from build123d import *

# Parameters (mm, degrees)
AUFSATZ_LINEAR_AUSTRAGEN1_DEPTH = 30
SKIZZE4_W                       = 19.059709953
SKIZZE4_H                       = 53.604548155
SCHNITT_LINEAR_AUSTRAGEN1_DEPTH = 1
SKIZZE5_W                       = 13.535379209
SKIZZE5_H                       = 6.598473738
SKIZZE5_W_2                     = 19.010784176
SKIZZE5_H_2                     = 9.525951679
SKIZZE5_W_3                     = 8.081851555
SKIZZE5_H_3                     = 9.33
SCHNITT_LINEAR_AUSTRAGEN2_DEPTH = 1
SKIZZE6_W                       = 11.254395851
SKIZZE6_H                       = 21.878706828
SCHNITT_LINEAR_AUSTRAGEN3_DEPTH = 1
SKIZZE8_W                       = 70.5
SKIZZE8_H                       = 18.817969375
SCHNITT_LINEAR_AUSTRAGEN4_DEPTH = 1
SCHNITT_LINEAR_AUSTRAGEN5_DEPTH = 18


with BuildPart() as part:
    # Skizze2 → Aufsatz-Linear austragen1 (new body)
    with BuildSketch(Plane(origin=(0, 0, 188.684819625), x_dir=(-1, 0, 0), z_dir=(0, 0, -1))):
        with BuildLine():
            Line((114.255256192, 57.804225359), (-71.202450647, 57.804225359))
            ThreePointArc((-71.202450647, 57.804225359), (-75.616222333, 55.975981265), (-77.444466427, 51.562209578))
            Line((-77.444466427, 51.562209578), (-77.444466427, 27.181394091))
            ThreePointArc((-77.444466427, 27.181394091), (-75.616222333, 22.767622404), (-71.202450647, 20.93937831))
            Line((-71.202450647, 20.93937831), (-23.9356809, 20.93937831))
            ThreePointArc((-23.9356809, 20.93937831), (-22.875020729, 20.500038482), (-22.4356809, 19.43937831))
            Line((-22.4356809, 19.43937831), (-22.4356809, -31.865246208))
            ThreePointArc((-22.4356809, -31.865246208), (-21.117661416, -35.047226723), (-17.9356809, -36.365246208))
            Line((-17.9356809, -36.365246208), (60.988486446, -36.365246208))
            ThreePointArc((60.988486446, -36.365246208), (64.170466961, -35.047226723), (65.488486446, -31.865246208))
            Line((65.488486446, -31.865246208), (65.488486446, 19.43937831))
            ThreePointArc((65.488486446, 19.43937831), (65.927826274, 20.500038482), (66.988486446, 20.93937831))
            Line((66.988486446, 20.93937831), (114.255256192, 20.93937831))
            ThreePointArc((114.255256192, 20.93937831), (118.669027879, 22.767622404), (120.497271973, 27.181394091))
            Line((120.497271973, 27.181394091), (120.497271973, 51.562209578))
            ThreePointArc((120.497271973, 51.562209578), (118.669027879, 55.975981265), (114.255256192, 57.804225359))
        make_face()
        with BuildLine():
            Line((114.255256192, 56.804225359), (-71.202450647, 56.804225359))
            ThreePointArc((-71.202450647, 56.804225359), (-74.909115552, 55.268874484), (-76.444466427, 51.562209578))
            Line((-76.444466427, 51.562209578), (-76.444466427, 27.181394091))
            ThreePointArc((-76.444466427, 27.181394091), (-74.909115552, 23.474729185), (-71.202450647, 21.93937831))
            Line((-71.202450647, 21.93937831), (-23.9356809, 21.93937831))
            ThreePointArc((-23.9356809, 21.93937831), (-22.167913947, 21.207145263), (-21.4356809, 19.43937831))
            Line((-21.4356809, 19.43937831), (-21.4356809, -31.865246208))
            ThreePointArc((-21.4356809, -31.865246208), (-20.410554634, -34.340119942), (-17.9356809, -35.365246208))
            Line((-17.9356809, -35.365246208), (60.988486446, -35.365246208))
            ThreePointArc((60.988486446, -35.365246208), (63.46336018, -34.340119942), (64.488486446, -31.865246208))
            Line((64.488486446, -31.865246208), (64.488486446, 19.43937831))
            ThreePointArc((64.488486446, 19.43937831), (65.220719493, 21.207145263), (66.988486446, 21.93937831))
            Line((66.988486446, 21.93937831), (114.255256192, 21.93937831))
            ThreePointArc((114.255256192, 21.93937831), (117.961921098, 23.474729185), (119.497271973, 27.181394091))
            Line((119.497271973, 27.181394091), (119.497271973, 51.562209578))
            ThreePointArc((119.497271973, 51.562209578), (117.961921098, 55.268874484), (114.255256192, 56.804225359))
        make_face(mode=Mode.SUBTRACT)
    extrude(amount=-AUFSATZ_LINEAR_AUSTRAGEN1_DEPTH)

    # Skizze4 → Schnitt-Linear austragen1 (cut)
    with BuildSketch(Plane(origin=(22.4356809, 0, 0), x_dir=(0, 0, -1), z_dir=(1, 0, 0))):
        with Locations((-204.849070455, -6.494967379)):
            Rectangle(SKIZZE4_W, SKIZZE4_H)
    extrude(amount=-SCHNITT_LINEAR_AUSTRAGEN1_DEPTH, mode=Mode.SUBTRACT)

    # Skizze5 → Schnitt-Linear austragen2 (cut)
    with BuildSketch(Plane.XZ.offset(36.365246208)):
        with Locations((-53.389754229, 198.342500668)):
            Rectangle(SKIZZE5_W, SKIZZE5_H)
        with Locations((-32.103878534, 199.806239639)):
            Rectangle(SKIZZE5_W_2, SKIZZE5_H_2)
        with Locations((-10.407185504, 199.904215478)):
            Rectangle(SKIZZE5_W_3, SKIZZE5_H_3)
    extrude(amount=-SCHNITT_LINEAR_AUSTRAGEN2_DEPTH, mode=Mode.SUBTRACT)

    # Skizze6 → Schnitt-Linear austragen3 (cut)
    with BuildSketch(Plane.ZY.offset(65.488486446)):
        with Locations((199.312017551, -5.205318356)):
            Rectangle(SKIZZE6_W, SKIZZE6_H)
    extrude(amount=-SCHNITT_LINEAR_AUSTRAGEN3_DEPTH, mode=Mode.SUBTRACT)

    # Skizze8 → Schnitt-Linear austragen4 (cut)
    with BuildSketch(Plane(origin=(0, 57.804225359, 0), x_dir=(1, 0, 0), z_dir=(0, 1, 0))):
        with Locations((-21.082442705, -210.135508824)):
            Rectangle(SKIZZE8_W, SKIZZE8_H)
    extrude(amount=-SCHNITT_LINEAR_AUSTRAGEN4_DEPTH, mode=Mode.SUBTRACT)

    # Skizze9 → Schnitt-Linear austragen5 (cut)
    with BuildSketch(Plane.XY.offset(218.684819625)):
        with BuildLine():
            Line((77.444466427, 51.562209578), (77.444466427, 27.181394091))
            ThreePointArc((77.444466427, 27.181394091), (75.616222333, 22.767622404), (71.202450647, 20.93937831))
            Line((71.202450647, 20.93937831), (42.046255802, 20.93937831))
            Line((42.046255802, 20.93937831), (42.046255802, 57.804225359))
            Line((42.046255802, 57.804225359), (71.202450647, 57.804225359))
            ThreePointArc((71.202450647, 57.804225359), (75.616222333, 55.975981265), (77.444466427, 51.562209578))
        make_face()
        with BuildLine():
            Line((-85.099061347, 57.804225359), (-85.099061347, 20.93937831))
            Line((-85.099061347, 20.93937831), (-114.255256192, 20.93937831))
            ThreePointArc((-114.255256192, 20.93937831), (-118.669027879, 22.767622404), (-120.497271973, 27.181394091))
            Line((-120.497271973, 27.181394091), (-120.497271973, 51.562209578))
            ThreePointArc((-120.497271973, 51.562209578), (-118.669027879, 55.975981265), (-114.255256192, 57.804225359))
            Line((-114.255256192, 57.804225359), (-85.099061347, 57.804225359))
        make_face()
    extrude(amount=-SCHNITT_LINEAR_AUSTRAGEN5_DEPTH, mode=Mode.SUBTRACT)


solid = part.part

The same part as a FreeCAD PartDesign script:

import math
import FreeCAD as App
import Part
import Sketcher

doc = App.newDocument("Part")
params = doc.addObject("Spreadsheet::Sheet", "Params")
for row, (alias, value) in enumerate([
    ("sketch1_radius", "1.5 mm"),
    ("sketch1_radius2", "4.5 mm"),
    ("sketch1_radius3", "2.5 mm"),
    ("pad1_length", "30 mm"),
    ("pocket1_length", "1 mm"),
    ("sketch3_height", "9.33 mm"),
    ("pocket2_length", "1 mm"),
    ("pocket3_length", "1 mm"),
    ("sketch5_width", "70.5 mm"),
    ("pocket4_length", "1 mm"),
    ("pocket5_length", "18 mm"),
], start=1):
    params.set(f"A{row}", alias)
    params.set(f"B{row}", "=" + value)
    params.setAlias(f"B{row}", alias)

body = doc.addObject("PartDesign::Body", "Body")

# Sketch on XY plane
sketch1 = body.newObject("Sketcher::SketchObject", "Sketch")
sketch1.AttachmentSupport = (doc.getObject("XY_Plane"), [""])
sketch1.MapMode = "FlatFace"
sketch1.AttachmentOffset = App.Placement(App.Vector(0, 0, 188.68482), App.Rotation())
sketch1.addGeometry([
    Part.LineSegment(App.Vector(-114.255256, 57.804225, 0), App.Vector(71.202451, 57.804225, 0)),  # 0
    Part.ArcOfCircle(Part.Circle(App.Vector(71.202451, 51.56221, 0), App.Vector(0, 0, 1), 6.242016), math.radians(0), math.radians(90)),  # 1
    Part.LineSegment(App.Vector(77.444466, 51.56221, 0), App.Vector(77.444466, 27.181394, 0)),  # 2
    Part.ArcOfCircle(Part.Circle(App.Vector(71.202451, 27.181394, 0), App.Vector(0, 0, 1), 6.242016), math.radians(-90), math.radians(0)),  # 3
    Part.LineSegment(App.Vector(71.202451, 20.939378, 0), App.Vector(23.935681, 20.939378, 0)),  # 4
    Part.ArcOfCircle(Part.Circle(App.Vector(23.935681, 19.439378, 0), App.Vector(0, 0, 1), 1.5), math.radians(90), math.radians(180)),  # 5
    Part.LineSegment(App.Vector(22.435681, 19.439378, 0), App.Vector(22.435681, -31.865246, 0)),  # 6
    Part.ArcOfCircle(Part.Circle(App.Vector(17.935681, -31.865246, 0), App.Vector(0, 0, 1), 4.5), math.radians(-90), math.radians(0)),  # 7
    Part.LineSegment(App.Vector(17.935681, -36.365246, 0), App.Vector(-60.988486, -36.365246, 0)),  # 8
    Part.ArcOfCircle(Part.Circle(App.Vector(-60.988486, -31.865246, 0), App.Vector(0, 0, 1), 4.5), math.radians(-180), math.radians(-90)),  # 9
    Part.LineSegment(App.Vector(-65.488486, -31.865246, 0), App.Vector(-65.488486, 19.439378, 0)),  # 10
    Part.ArcOfCircle(Part.Circle(App.Vector(-66.988486, 19.439378, 0), App.Vector(0, 0, 1), 1.5), math.radians(0), math.radians(90)),  # 11
    Part.LineSegment(App.Vector(-66.988486, 20.939378, 0), App.Vector(-114.255256, 20.939378, 0)),  # 12
    Part.ArcOfCircle(Part.Circle(App.Vector(-114.255256, 27.181394, 0), App.Vector(0, 0, 1), 6.242016), math.radians(180), math.radians(270)),  # 13
    Part.LineSegment(App.Vector(-120.497272, 27.181394, 0), App.Vector(-120.497272, 51.56221, 0)),  # 14
    Part.ArcOfCircle(Part.Circle(App.Vector(-114.255256, 51.56221, 0), App.Vector(0, 0, 1), 6.242016), math.radians(90), math.radians(180)),  # 15
    Part.LineSegment(App.Vector(71.202451, 56.804225, 0), App.Vector(-114.255256, 56.804225, 0)),  # 16
    Part.ArcOfCircle(Part.Circle(App.Vector(-114.255256, 51.56221, 0), App.Vector(0, 0, 1), 5.242016), math.radians(90), math.radians(180)),  # 17
    Part.LineSegment(App.Vector(-119.497272, 51.56221, 0), App.Vector(-119.497272, 27.181394, 0)),  # 18
    Part.ArcOfCircle(Part.Circle(App.Vector(-114.255256, 27.181394, 0), App.Vector(0, 0, 1), 5.242016), math.radians(180), math.radians(270)),  # 19
    Part.LineSegment(App.Vector(-114.255256, 21.939378, 0), App.Vector(-66.988486, 21.939378, 0)),  # 20
    Part.ArcOfCircle(Part.Circle(App.Vector(-66.988486, 19.439378, 0), App.Vector(0, 0, 1), 2.5), math.radians(0), math.radians(90)),  # 21
    Part.LineSegment(App.Vector(-64.488486, 19.439378, 0), App.Vector(-64.488486, -31.865246, 0)),  # 22
    Part.ArcOfCircle(Part.Circle(App.Vector(-60.988486, -31.865246, 0), App.Vector(0, 0, 1), 3.5), math.radians(-180), math.radians(-90)),  # 23
    Part.LineSegment(App.Vector(-60.988486, -35.365246, 0), App.Vector(17.935681, -35.365246, 0)),  # 24
    Part.ArcOfCircle(Part.Circle(App.Vector(17.935681, -31.865246, 0), App.Vector(0, 0, 1), 3.5), math.radians(-90), math.radians(0)),  # 25
    Part.LineSegment(App.Vector(21.435681, -31.865246, 0), App.Vector(21.435681, 19.439378, 0)),  # 26
    Part.ArcOfCircle(Part.Circle(App.Vector(23.935681, 19.439378, 0), App.Vector(0, 0, 1), 2.5), math.radians(90), math.radians(180)),  # 27
    Part.LineSegment(App.Vector(23.935681, 21.939378, 0), App.Vector(71.202451, 21.939378, 0)),  # 28
    Part.ArcOfCircle(Part.Circle(App.Vector(71.202451, 27.181394, 0), App.Vector(0, 0, 1), 5.242016), math.radians(-90), math.radians(0)),  # 29
    Part.LineSegment(App.Vector(76.444466, 27.181394, 0), App.Vector(76.444466, 51.56221, 0)),  # 30
    Part.ArcOfCircle(Part.Circle(App.Vector(71.202451, 51.56221, 0), App.Vector(0, 0, 1), 5.242016), math.radians(0), math.radians(90)),  # 31
], False)
sketch1.addConstraint([
    Sketcher.Constraint("Tangent", 0, 2, 1, 2),
    Sketcher.Constraint("Tangent", 1, 1, 2, 1),
    Sketcher.Constraint("Tangent", 2, 2, 3, 2),
    Sketcher.Constraint("Tangent", 3, 1, 4, 1),
    Sketcher.Constraint("Tangent", 4, 2, 5, 1),
    Sketcher.Constraint("Tangent", 5, 2, 6, 1),
    Sketcher.Constraint("Tangent", 6, 2, 7, 2),
    Sketcher.Constraint("Tangent", 7, 1, 8, 1),
    Sketcher.Constraint("Tangent", 8, 2, 9, 2),
    Sketcher.Constraint("Tangent", 9, 1, 10, 1),
    Sketcher.Constraint("Tangent", 10, 2, 11, 1),
    Sketcher.Constraint("Tangent", 11, 2, 12, 1),
    Sketcher.Constraint("Tangent", 12, 2, 13, 2),
    Sketcher.Constraint("Tangent", 13, 1, 14, 1),
    Sketcher.Constraint("Tangent", 14, 2, 15, 2),
    Sketcher.Constraint("Tangent", 15, 1, 0, 1),
    Sketcher.Constraint("Tangent", 16, 2, 17, 1),
    Sketcher.Constraint("Tangent", 17, 2, 18, 1),
    Sketcher.Constraint("Tangent", 18, 2, 19, 1),
    Sketcher.Constraint("Tangent", 19, 2, 20, 1),
    Sketcher.Constraint("Tangent", 20, 2, 21, 2),
    Sketcher.Constraint("Tangent", 21, 1, 22, 1),
    Sketcher.Constraint("Tangent", 22, 2, 23, 1),
    Sketcher.Constraint("Tangent", 23, 2, 24, 1),
    Sketcher.Constraint("Tangent", 24, 2, 25, 1),
    Sketcher.Constraint("Tangent", 25, 2, 26, 1),
    Sketcher.Constraint("Tangent", 26, 2, 27, 2),
    Sketcher.Constraint("Tangent", 27, 1, 28, 1),
    Sketcher.Constraint("Tangent", 28, 2, 29, 1),
    Sketcher.Constraint("Tangent", 29, 2, 30, 1),
    Sketcher.Constraint("Tangent", 30, 2, 31, 1),
    Sketcher.Constraint("Tangent", 31, 2, 16, 1),
    Sketcher.Constraint("Horizontal", 0),
    Sketcher.Constraint("Vertical", 2),
    Sketcher.Constraint("Horizontal", 4),
    Sketcher.Constraint("Vertical", 6),
    Sketcher.Constraint("Horizontal", 8),
    Sketcher.Constraint("Vertical", 10),
    Sketcher.Constraint("Horizontal", 12),
    Sketcher.Constraint("Vertical", 14),
    Sketcher.Constraint("Horizontal", 16),
    Sketcher.Constraint("Vertical", 18),
    Sketcher.Constraint("Horizontal", 20),
    Sketcher.Constraint("Vertical", 22),
    Sketcher.Constraint("Horizontal", 24),
    Sketcher.Constraint("Vertical", 26),
    Sketcher.Constraint("Horizontal", 28),
    Sketcher.Constraint("Vertical", 30),
    Sketcher.Constraint("Coincident", 17, 3, 15, 3),
    Sketcher.Constraint("Coincident", 19, 3, 13, 3),
    Sketcher.Constraint("Coincident", 21, 3, 11, 3),
    Sketcher.Constraint("Coincident", 23, 3, 9, 3),
    Sketcher.Constraint("Coincident", 25, 3, 7, 3),
    Sketcher.Constraint("Coincident", 27, 3, 5, 3),
    Sketcher.Constraint("Coincident", 29, 3, 3, 3),
    Sketcher.Constraint("Equal", 1, 3),
    Sketcher.Constraint("Equal", 7, 9),
    Sketcher.Constraint("Equal", 5, 11),
    Sketcher.Constraint("Equal", 3, 13),
    Sketcher.Constraint("Equal", 13, 15),
    Sketcher.Constraint("Equal", 29, 31),
    Sketcher.Constraint("Horizontal", 5, 3, 11, 3),
    Sketcher.Constraint("Equal", 4, 12),
    Sketcher.Constraint("Radius", 5, 1.5),
    Sketcher.Constraint("Radius", 7, 4.5),
    Sketcher.Constraint("Radius", 21, 2.5),
    Sketcher.Constraint("Radius", 1, 6.242016),
    Sketcher.Constraint("DistanceX", 4, 2, 4, 1, 47.26677),
    Sketcher.Constraint("DistanceX", 0, 1, 0, 2, 185.457707),
    Sketcher.Constraint("DistanceY", 2, 2, 2, 1, 24.380815),
    Sketcher.Constraint("DistanceY", 6, 2, 6, 1, 51.304625),
    Sketcher.Constraint("DistanceX", -1, 1, 1, 3, 71.202451),
    Sketcher.Constraint("DistanceY", -1, 1, 1, 3, 51.56221),
])
sketch1.setExpression("Constraints[63]", "Params.sketch1_radius")
sketch1.setExpression("Constraints[64]", "Params.sketch1_radius2")
sketch1.setExpression("Constraints[65]", "Params.sketch1_radius3")
pad1 = body.newObject("PartDesign::Pad", "Pad")
pad1.Profile = sketch1
pad1.setExpression("Length", "Params.pad1_length")

# Sketch on YZ plane
sketch2 = body.newObject("Sketcher::SketchObject", "Sketch001")
sketch2.AttachmentSupport = (doc.getObject("YZ_Plane"), [""])
sketch2.MapMode = "FlatFace"
sketch2.AttachmentOffset = App.Placement(App.Vector(0, 0, 22.435681), App.Rotation())
sketch2.addGeometry([
    Part.LineSegment(App.Vector(20.307307, 214.378925, 0), App.Vector(-33.297241, 214.378925, 0)),
    Part.LineSegment(App.Vector(-33.297241, 214.378925, 0), App.Vector(-33.297241, 195.319215, 0)),
    Part.LineSegment(App.Vector(-33.297241, 195.319215, 0), App.Vector(20.307307, 195.319215, 0)),
    Part.LineSegment(App.Vector(20.307307, 195.319215, 0), App.Vector(20.307307, 214.378925, 0)),
], False)
sketch2.addConstraint([
    Sketcher.Constraint("Coincident", 0, 2, 1, 1),
    Sketcher.Constraint("Coincident", 1, 2, 2, 1),
    Sketcher.Constraint("Coincident", 2, 2, 3, 1),
    Sketcher.Constraint("Coincident", 3, 2, 0, 1),
    Sketcher.Constraint("Horizontal", 0),
    Sketcher.Constraint("Vertical", 1),
    Sketcher.Constraint("Horizontal", 2),
    Sketcher.Constraint("Vertical", 3),
    Sketcher.Constraint("DistanceX", 0, 2, 0, 1, 53.604548),
    Sketcher.Constraint("DistanceY", 1, 2, 1, 1, 19.05971),
    Sketcher.Constraint("DistanceX", 0, 2, -1, 1, 33.297241),
    Sketcher.Constraint("DistanceY", -1, 1, 0, 2, 214.378925),
])
pocket1 = body.newObject("PartDesign::Pocket", "Pocket")
pocket1.Profile = sketch2
pocket1.setExpression("Length", "Params.pocket1_length")

# Sketch on XZ plane
sketch3 = body.newObject("Sketcher::SketchObject", "Sketch002")
sketch3.AttachmentSupport = (doc.getObject("XZ_Plane"), [""])
sketch3.MapMode = "FlatFace"
sketch3.AttachmentOffset = App.Placement(App.Vector(0, 0, 36.365246), App.Rotation())
sketch3.addGeometry([
    Part.LineSegment(App.Vector(-60.157444, 201.641738, 0), App.Vector(-60.157444, 195.043264, 0)),  # 0
    Part.LineSegment(App.Vector(-60.157444, 195.043264, 0), App.Vector(-46.622065, 195.043264, 0)),  # 1
    Part.LineSegment(App.Vector(-46.622065, 195.043264, 0), App.Vector(-46.622065, 201.641738, 0)),  # 2
    Part.LineSegment(App.Vector(-46.622065, 201.641738, 0), App.Vector(-60.157444, 201.641738, 0)),  # 3
    Part.LineSegment(App.Vector(-41.609271, 204.569215, 0), App.Vector(-41.609271, 195.043264, 0)),  # 4
    Part.LineSegment(App.Vector(-41.609271, 195.043264, 0), App.Vector(-22.598486, 195.043264, 0)),  # 5
    Part.LineSegment(App.Vector(-22.598486, 195.043264, 0), App.Vector(-22.598486, 204.569215, 0)),  # 6
    Part.LineSegment(App.Vector(-22.598486, 204.569215, 0), App.Vector(-41.609271, 204.569215, 0)),  # 7
    Part.LineSegment(App.Vector(-14.448111, 204.569215, 0), App.Vector(-14.448111, 195.239215, 0)),  # 8
    Part.LineSegment(App.Vector(-14.448111, 195.239215, 0), App.Vector(-6.36626, 195.239215, 0)),  # 9
    Part.LineSegment(App.Vector(-6.36626, 195.239215, 0), App.Vector(-6.36626, 204.569215, 0)),  # 10
    Part.LineSegment(App.Vector(-6.36626, 204.569215, 0), App.Vector(-14.448111, 204.569215, 0)),  # 11
], False)
sketch3.addConstraint([
    Sketcher.Constraint("Coincident", 0, 2, 1, 1),
    Sketcher.Constraint("Coincident", 1, 2, 2, 1),
    Sketcher.Constraint("Coincident", 2, 2, 3, 1),
    Sketcher.Constraint("Coincident", 3, 2, 0, 1),
    Sketcher.Constraint("Coincident", 4, 2, 5, 1),
    Sketcher.Constraint("Coincident", 5, 2, 6, 1),
    Sketcher.Constraint("Coincident", 6, 2, 7, 1),
    Sketcher.Constraint("Coincident", 7, 2, 4, 1),
    Sketcher.Constraint("Coincident", 8, 2, 9, 1),
    Sketcher.Constraint("Coincident", 9, 2, 10, 1),
    Sketcher.Constraint("Coincident", 10, 2, 11, 1),
    Sketcher.Constraint("Coincident", 11, 2, 8, 1),
    Sketcher.Constraint("Vertical", 0),
    Sketcher.Constraint("Horizontal", 1),
    Sketcher.Constraint("Vertical", 2),
    Sketcher.Constraint("Horizontal", 3),
    Sketcher.Constraint("Vertical", 4),
    Sketcher.Constraint("Horizontal", 5),
    Sketcher.Constraint("Vertical", 6),
    Sketcher.Constraint("Horizontal", 7),
    Sketcher.Constraint("Vertical", 8),
    Sketcher.Constraint("Horizontal", 9),
    Sketcher.Constraint("Vertical", 10),
    Sketcher.Constraint("Horizontal", 11),
    Sketcher.Constraint("Horizontal", 1, 2, 4, 2),
    Sketcher.Constraint("Horizontal", 7, 2, 10, 2),
    Sketcher.Constraint("DistanceY", 8, 2, 8, 1, 9.33),
    Sketcher.Constraint("DistanceX", 1, 1, 1, 2, 13.535379),
    Sketcher.Constraint("DistanceX", 9, 1, 9, 2, 8.081852),
    Sketcher.Constraint("DistanceY", 4, 2, 4, 1, 9.525952),
    Sketcher.Constraint("DistanceX", 5, 1, 5, 2, 19.010784),
    Sketcher.Constraint("DistanceY", 0, 2, 0, 1, 6.598474),
    Sketcher.Constraint("DistanceX", 4, 2, -1, 1, 41.609271),
    Sketcher.Constraint("DistanceX", 8, 2, -1, 1, 14.448111),
    Sketcher.Constraint("DistanceX", 1, 2, 5, 2, 24.023578),
    Sketcher.Constraint("DistanceY", -1, 1, 0, 2, 195.043264),
])
sketch3.setExpression("Constraints[26]", "Params.sketch3_height")
pocket2 = body.newObject("PartDesign::Pocket", "Pocket001")
pocket2.Profile = sketch3
pocket2.setExpression("Length", "Params.pocket2_length")

# Sketch on YZ plane
sketch4 = body.newObject("Sketcher::SketchObject", "Sketch003")
sketch4.AttachmentSupport = (doc.getObject("YZ_Plane"), [""])
sketch4.MapMode = "FlatFace"
sketch4.AttachmentOffset = App.Placement(App.Vector(0, 0, -65.488486), App.Rotation())
sketch4.addGeometry([
    Part.LineSegment(App.Vector(5.734035, 193.68482, 0), App.Vector(-16.144672, 193.68482, 0)),
    Part.LineSegment(App.Vector(-16.144672, 193.68482, 0), App.Vector(-16.144672, 204.939215, 0)),
    Part.LineSegment(App.Vector(-16.144672, 204.939215, 0), App.Vector(5.734035, 204.939215, 0)),
    Part.LineSegment(App.Vector(5.734035, 204.939215, 0), App.Vector(5.734035, 193.68482, 0)),
], False)
sketch4.addConstraint([
    Sketcher.Constraint("Coincident", 0, 2, 1, 1),
    Sketcher.Constraint("Coincident", 1, 2, 2, 1),
    Sketcher.Constraint("Coincident", 2, 2, 3, 1),
    Sketcher.Constraint("Coincident", 3, 2, 0, 1),
    Sketcher.Constraint("Horizontal", 0),
    Sketcher.Constraint("Vertical", 1),
    Sketcher.Constraint("Horizontal", 2),
    Sketcher.Constraint("Vertical", 3),
    Sketcher.Constraint("DistanceX", 0, 2, 0, 1, 21.878707),
    Sketcher.Constraint("DistanceY", 1, 1, 1, 2, 11.254396),
    Sketcher.Constraint("DistanceX", 0, 2, -1, 1, 16.144672),
    Sketcher.Constraint("DistanceY", -1, 1, 0, 2, 193.68482),
])
pocket3 = body.newObject("PartDesign::Pocket", "Pocket002")
pocket3.Profile = sketch4
pocket3.setExpression("Length", "Params.pocket3_length")
pocket3.Reversed = True

# Sketch on XZ plane
sketch5 = body.newObject("Sketcher::SketchObject", "Sketch004")
sketch5.AttachmentSupport = (doc.getObject("XZ_Plane"), [""])
sketch5.MapMode = "FlatFace"
sketch5.AttachmentOffset = App.Placement(App.Vector(0, 0, -57.804225), App.Rotation())
sketch5.addGeometry([
    Part.LineSegment(App.Vector(-56.332443, 200.726524, 0), App.Vector(-56.332443, 219.544494, 0)),
    Part.LineSegment(App.Vector(-56.332443, 219.544494, 0), App.Vector(14.167557, 219.544494, 0)),
    Part.LineSegment(App.Vector(14.167557, 219.544494, 0), App.Vector(14.167557, 200.726524, 0)),
    Part.LineSegment(App.Vector(14.167557, 200.726524, 0), App.Vector(-56.332443, 200.726524, 0)),
], False)
sketch5.addConstraint([
    Sketcher.Constraint("Coincident", 0, 2, 1, 1),
    Sketcher.Constraint("Coincident", 1, 2, 2, 1),
    Sketcher.Constraint("Coincident", 2, 2, 3, 1),
    Sketcher.Constraint("Coincident", 3, 2, 0, 1),
    Sketcher.Constraint("Vertical", 0),
    Sketcher.Constraint("Horizontal", 1),
    Sketcher.Constraint("Vertical", 2),
    Sketcher.Constraint("Horizontal", 3),
    Sketcher.Constraint("DistanceX", 1, 1, 1, 2, 70.5),
    Sketcher.Constraint("DistanceY", 0, 1, 0, 2, 18.817969),
    Sketcher.Constraint("DistanceX", 0, 2, -1, 1, 56.332443),
    Sketcher.Constraint("DistanceY", -1, 1, 0, 2, 219.544494),
])
sketch5.setExpression("Constraints[8]", "Params.sketch5_width")
pocket4 = body.newObject("PartDesign::Pocket", "Pocket003")
pocket4.Profile = sketch5
pocket4.setExpression("Length", "Params.pocket4_length")
pocket4.Reversed = True

# Sketch on XY plane
sketch6 = body.newObject("Sketcher::SketchObject", "Sketch005")
sketch6.AttachmentSupport = (doc.getObject("XY_Plane"), [""])
sketch6.MapMode = "FlatFace"
sketch6.AttachmentOffset = App.Placement(App.Vector(0, 0, 218.68482), App.Rotation())
sketch6.addGeometry([
    Part.LineSegment(App.Vector(77.444466, 27.181394, 0), App.Vector(77.444466, 51.56221, 0)),  # 0
    Part.ArcOfCircle(Part.Circle(App.Vector(71.202451, 51.56221, 0), App.Vector(0, 0, 1), 6.242016), math.radians(0), math.radians(90)),  # 1
    Part.LineSegment(App.Vector(71.202451, 57.804225, 0), App.Vector(42.046256, 57.804225, 0)),  # 2
    Part.LineSegment(App.Vector(42.046256, 57.804225, 0), App.Vector(42.046256, 20.939378, 0)),  # 3
    Part.LineSegment(App.Vector(42.046256, 20.939378, 0), App.Vector(71.202451, 20.939378, 0)),  # 4
    Part.ArcOfCircle(Part.Circle(App.Vector(71.202451, 27.181394, 0), App.Vector(0, 0, 1), 6.242016), math.radians(-90), math.radians(0)),  # 5
    Part.LineSegment(App.Vector(-85.099061, 20.939378, 0), App.Vector(-85.099061, 57.804225, 0)),  # 6
    Part.LineSegment(App.Vector(-85.099061, 57.804225, 0), App.Vector(-114.255256, 57.804225, 0)),  # 7
    Part.ArcOfCircle(Part.Circle(App.Vector(-114.255256, 51.56221, 0), App.Vector(0, 0, 1), 6.242016), math.radians(90), math.radians(180)),  # 8
    Part.LineSegment(App.Vector(-120.497272, 51.56221, 0), App.Vector(-120.497272, 27.181394, 0)),  # 9
    Part.ArcOfCircle(Part.Circle(App.Vector(-114.255256, 27.181394, 0), App.Vector(0, 0, 1), 6.242016), math.radians(180), math.radians(270)),  # 10
    Part.LineSegment(App.Vector(-114.255256, 20.939378, 0), App.Vector(-85.099061, 20.939378, 0)),  # 11
], False)
sketch6.addConstraint([
    Sketcher.Constraint("Tangent", 0, 2, 1, 1),
    Sketcher.Constraint("Tangent", 1, 2, 2, 1),
    Sketcher.Constraint("Coincident", 2, 2, 3, 1),
    Sketcher.Constraint("Coincident", 3, 2, 4, 1),
    Sketcher.Constraint("Tangent", 4, 2, 5, 1),
    Sketcher.Constraint("Tangent", 5, 2, 0, 1),
    Sketcher.Constraint("Coincident", 6, 2, 7, 1),
    Sketcher.Constraint("Tangent", 7, 2, 8, 1),
    Sketcher.Constraint("Tangent", 8, 2, 9, 1),
    Sketcher.Constraint("Tangent", 9, 2, 10, 1),
    Sketcher.Constraint("Tangent", 10, 2, 11, 1),
    Sketcher.Constraint("Coincident", 11, 2, 6, 1),
    Sketcher.Constraint("Vertical", 0),
    Sketcher.Constraint("Horizontal", 2),
    Sketcher.Constraint("Vertical", 3),
    Sketcher.Constraint("Horizontal", 4),
    Sketcher.Constraint("Vertical", 6),
    Sketcher.Constraint("Horizontal", 7),
    Sketcher.Constraint("Vertical", 9),
    Sketcher.Constraint("Horizontal", 11),
    Sketcher.Constraint("Equal", 1, 5),
    Sketcher.Constraint("Equal", 5, 8),
    Sketcher.Constraint("Equal", 8, 10),
    Sketcher.Constraint("Horizontal", 1, 3, 8, 3),
    Sketcher.Constraint("Horizontal", 5, 3, 10, 3),
    Sketcher.Constraint("Equal", 4, 7),
    Sketcher.Constraint("Radius", 1, 6.242016),
    Sketcher.Constraint("DistanceX", 2, 2, 2, 1, 29.156195),
    Sketcher.Constraint("DistanceY", 0, 1, 0, 2, 24.380815),
    Sketcher.Constraint("DistanceX", -1, 1, 1, 3, 71.202451),
    Sketcher.Constraint("DistanceY", -1, 1, 1, 3, 51.56221),
    Sketcher.Constraint("DistanceX", 6, 2, -1, 1, 85.099061),
])
pocket5 = body.newObject("PartDesign::Pocket", "Pocket004")
pocket5.Profile = sketch6
pocket5.setExpression("Length", "Params.pocket5_length")

doc.recompute()
